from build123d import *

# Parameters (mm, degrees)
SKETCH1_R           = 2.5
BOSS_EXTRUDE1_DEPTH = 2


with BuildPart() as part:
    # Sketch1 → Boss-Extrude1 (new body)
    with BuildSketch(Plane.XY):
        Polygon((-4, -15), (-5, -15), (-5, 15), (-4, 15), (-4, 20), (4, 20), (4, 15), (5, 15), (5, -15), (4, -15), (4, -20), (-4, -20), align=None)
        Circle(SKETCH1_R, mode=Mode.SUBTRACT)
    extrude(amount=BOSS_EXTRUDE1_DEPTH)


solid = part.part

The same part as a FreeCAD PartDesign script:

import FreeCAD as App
import Part
import Sketcher
from FreeCAD import Vector


def add_polygon(sketch, points):
    """Adds a closed chain of lines whose ends are joined by coincident constraints."""
    first, n = sketch.GeometryCount, len(points)
    for a, b in zip(points, points[1:] + points[:1]):
        sketch.addGeometry(Part.LineSegment(App.Vector(*a, 0), App.Vector(*b, 0)), False)
    for i in range(n):
        sketch.addConstraint(Sketcher.Constraint("Coincident", first + i, 2, first + (i + 1) % n, 1))

doc = App.newDocument("Part")
body = doc.addObject("PartDesign::Body", "Body")

sketch1 = doc.addObject("Sketcher::SketchObject", "Sketch")
body.addObject(sketch1)
sketch1.AttachmentSupport = (doc.XY_Plane, [""])
sketch1.MapMode = "FlatFace"
add_polygon(sketch1, [(-5, -15), (-4, -15), (-4, -20), (4, -20), (4, -15), (5, -15), (5, 15), (4, 15), (4, 20), (-4, 20), (-4, 15), (-5, 15)])
sketch1.addGeometry(Part.Circle(Vector(0, 0, 0), Vector(0, 0, 1), 2.5), False)
sketch1.addConstraint([
    Sketcher.Constraint("Horizontal", 0),
    Sketcher.Constraint("Vertical", 1),
    Sketcher.Constraint("Horizontal", 2),
    Sketcher.Constraint("Vertical", 3),
    Sketcher.Constraint("Horizontal", 4),
    Sketcher.Constraint("Vertical", 5),
    Sketcher.Constraint("Horizontal", 6),
    Sketcher.Constraint("Vertical", 7),
    Sketcher.Constraint("Horizontal", 8),
    Sketcher.Constraint("Vertical", 9),
    Sketcher.Constraint("Horizontal", 10),
    Sketcher.Constraint("Vertical", 11),
    Sketcher.Constraint("Coincident", 12, 3, -1, 1),
    Sketcher.Constraint("Symmetric", 0, 2, 6, 2, -1, 1),
    Sketcher.Constraint("Symmetric", 2, 2, 8, 2, -1, 1),
    Sketcher.Constraint("Symmetric", 4, 2, 10, 2, -1, 1),
    Sketcher.Constraint("Symmetric", 0, 2, 3, 2, -2),
    Sketcher.Constraint("Diameter", 12, 5.0),
    Sketcher.Constraint("DistanceX", 0, 1, 0, 2, 1.0),
    Sketcher.Constraint("DistanceX", 2, 1, 2, 2, 8.0),
    Sketcher.Constraint("DistanceY", 1, 2, 1, 1, 5.0),
    Sketcher.Constraint("DistanceY", 5, 1, 5, 2, 30.0),
])
pad1 = doc.addObject("PartDesign::Pad", "Pad")
body.addObject(pad1)
pad1.Profile = sketch1
pad1.Length = 2

doc.recompute()
